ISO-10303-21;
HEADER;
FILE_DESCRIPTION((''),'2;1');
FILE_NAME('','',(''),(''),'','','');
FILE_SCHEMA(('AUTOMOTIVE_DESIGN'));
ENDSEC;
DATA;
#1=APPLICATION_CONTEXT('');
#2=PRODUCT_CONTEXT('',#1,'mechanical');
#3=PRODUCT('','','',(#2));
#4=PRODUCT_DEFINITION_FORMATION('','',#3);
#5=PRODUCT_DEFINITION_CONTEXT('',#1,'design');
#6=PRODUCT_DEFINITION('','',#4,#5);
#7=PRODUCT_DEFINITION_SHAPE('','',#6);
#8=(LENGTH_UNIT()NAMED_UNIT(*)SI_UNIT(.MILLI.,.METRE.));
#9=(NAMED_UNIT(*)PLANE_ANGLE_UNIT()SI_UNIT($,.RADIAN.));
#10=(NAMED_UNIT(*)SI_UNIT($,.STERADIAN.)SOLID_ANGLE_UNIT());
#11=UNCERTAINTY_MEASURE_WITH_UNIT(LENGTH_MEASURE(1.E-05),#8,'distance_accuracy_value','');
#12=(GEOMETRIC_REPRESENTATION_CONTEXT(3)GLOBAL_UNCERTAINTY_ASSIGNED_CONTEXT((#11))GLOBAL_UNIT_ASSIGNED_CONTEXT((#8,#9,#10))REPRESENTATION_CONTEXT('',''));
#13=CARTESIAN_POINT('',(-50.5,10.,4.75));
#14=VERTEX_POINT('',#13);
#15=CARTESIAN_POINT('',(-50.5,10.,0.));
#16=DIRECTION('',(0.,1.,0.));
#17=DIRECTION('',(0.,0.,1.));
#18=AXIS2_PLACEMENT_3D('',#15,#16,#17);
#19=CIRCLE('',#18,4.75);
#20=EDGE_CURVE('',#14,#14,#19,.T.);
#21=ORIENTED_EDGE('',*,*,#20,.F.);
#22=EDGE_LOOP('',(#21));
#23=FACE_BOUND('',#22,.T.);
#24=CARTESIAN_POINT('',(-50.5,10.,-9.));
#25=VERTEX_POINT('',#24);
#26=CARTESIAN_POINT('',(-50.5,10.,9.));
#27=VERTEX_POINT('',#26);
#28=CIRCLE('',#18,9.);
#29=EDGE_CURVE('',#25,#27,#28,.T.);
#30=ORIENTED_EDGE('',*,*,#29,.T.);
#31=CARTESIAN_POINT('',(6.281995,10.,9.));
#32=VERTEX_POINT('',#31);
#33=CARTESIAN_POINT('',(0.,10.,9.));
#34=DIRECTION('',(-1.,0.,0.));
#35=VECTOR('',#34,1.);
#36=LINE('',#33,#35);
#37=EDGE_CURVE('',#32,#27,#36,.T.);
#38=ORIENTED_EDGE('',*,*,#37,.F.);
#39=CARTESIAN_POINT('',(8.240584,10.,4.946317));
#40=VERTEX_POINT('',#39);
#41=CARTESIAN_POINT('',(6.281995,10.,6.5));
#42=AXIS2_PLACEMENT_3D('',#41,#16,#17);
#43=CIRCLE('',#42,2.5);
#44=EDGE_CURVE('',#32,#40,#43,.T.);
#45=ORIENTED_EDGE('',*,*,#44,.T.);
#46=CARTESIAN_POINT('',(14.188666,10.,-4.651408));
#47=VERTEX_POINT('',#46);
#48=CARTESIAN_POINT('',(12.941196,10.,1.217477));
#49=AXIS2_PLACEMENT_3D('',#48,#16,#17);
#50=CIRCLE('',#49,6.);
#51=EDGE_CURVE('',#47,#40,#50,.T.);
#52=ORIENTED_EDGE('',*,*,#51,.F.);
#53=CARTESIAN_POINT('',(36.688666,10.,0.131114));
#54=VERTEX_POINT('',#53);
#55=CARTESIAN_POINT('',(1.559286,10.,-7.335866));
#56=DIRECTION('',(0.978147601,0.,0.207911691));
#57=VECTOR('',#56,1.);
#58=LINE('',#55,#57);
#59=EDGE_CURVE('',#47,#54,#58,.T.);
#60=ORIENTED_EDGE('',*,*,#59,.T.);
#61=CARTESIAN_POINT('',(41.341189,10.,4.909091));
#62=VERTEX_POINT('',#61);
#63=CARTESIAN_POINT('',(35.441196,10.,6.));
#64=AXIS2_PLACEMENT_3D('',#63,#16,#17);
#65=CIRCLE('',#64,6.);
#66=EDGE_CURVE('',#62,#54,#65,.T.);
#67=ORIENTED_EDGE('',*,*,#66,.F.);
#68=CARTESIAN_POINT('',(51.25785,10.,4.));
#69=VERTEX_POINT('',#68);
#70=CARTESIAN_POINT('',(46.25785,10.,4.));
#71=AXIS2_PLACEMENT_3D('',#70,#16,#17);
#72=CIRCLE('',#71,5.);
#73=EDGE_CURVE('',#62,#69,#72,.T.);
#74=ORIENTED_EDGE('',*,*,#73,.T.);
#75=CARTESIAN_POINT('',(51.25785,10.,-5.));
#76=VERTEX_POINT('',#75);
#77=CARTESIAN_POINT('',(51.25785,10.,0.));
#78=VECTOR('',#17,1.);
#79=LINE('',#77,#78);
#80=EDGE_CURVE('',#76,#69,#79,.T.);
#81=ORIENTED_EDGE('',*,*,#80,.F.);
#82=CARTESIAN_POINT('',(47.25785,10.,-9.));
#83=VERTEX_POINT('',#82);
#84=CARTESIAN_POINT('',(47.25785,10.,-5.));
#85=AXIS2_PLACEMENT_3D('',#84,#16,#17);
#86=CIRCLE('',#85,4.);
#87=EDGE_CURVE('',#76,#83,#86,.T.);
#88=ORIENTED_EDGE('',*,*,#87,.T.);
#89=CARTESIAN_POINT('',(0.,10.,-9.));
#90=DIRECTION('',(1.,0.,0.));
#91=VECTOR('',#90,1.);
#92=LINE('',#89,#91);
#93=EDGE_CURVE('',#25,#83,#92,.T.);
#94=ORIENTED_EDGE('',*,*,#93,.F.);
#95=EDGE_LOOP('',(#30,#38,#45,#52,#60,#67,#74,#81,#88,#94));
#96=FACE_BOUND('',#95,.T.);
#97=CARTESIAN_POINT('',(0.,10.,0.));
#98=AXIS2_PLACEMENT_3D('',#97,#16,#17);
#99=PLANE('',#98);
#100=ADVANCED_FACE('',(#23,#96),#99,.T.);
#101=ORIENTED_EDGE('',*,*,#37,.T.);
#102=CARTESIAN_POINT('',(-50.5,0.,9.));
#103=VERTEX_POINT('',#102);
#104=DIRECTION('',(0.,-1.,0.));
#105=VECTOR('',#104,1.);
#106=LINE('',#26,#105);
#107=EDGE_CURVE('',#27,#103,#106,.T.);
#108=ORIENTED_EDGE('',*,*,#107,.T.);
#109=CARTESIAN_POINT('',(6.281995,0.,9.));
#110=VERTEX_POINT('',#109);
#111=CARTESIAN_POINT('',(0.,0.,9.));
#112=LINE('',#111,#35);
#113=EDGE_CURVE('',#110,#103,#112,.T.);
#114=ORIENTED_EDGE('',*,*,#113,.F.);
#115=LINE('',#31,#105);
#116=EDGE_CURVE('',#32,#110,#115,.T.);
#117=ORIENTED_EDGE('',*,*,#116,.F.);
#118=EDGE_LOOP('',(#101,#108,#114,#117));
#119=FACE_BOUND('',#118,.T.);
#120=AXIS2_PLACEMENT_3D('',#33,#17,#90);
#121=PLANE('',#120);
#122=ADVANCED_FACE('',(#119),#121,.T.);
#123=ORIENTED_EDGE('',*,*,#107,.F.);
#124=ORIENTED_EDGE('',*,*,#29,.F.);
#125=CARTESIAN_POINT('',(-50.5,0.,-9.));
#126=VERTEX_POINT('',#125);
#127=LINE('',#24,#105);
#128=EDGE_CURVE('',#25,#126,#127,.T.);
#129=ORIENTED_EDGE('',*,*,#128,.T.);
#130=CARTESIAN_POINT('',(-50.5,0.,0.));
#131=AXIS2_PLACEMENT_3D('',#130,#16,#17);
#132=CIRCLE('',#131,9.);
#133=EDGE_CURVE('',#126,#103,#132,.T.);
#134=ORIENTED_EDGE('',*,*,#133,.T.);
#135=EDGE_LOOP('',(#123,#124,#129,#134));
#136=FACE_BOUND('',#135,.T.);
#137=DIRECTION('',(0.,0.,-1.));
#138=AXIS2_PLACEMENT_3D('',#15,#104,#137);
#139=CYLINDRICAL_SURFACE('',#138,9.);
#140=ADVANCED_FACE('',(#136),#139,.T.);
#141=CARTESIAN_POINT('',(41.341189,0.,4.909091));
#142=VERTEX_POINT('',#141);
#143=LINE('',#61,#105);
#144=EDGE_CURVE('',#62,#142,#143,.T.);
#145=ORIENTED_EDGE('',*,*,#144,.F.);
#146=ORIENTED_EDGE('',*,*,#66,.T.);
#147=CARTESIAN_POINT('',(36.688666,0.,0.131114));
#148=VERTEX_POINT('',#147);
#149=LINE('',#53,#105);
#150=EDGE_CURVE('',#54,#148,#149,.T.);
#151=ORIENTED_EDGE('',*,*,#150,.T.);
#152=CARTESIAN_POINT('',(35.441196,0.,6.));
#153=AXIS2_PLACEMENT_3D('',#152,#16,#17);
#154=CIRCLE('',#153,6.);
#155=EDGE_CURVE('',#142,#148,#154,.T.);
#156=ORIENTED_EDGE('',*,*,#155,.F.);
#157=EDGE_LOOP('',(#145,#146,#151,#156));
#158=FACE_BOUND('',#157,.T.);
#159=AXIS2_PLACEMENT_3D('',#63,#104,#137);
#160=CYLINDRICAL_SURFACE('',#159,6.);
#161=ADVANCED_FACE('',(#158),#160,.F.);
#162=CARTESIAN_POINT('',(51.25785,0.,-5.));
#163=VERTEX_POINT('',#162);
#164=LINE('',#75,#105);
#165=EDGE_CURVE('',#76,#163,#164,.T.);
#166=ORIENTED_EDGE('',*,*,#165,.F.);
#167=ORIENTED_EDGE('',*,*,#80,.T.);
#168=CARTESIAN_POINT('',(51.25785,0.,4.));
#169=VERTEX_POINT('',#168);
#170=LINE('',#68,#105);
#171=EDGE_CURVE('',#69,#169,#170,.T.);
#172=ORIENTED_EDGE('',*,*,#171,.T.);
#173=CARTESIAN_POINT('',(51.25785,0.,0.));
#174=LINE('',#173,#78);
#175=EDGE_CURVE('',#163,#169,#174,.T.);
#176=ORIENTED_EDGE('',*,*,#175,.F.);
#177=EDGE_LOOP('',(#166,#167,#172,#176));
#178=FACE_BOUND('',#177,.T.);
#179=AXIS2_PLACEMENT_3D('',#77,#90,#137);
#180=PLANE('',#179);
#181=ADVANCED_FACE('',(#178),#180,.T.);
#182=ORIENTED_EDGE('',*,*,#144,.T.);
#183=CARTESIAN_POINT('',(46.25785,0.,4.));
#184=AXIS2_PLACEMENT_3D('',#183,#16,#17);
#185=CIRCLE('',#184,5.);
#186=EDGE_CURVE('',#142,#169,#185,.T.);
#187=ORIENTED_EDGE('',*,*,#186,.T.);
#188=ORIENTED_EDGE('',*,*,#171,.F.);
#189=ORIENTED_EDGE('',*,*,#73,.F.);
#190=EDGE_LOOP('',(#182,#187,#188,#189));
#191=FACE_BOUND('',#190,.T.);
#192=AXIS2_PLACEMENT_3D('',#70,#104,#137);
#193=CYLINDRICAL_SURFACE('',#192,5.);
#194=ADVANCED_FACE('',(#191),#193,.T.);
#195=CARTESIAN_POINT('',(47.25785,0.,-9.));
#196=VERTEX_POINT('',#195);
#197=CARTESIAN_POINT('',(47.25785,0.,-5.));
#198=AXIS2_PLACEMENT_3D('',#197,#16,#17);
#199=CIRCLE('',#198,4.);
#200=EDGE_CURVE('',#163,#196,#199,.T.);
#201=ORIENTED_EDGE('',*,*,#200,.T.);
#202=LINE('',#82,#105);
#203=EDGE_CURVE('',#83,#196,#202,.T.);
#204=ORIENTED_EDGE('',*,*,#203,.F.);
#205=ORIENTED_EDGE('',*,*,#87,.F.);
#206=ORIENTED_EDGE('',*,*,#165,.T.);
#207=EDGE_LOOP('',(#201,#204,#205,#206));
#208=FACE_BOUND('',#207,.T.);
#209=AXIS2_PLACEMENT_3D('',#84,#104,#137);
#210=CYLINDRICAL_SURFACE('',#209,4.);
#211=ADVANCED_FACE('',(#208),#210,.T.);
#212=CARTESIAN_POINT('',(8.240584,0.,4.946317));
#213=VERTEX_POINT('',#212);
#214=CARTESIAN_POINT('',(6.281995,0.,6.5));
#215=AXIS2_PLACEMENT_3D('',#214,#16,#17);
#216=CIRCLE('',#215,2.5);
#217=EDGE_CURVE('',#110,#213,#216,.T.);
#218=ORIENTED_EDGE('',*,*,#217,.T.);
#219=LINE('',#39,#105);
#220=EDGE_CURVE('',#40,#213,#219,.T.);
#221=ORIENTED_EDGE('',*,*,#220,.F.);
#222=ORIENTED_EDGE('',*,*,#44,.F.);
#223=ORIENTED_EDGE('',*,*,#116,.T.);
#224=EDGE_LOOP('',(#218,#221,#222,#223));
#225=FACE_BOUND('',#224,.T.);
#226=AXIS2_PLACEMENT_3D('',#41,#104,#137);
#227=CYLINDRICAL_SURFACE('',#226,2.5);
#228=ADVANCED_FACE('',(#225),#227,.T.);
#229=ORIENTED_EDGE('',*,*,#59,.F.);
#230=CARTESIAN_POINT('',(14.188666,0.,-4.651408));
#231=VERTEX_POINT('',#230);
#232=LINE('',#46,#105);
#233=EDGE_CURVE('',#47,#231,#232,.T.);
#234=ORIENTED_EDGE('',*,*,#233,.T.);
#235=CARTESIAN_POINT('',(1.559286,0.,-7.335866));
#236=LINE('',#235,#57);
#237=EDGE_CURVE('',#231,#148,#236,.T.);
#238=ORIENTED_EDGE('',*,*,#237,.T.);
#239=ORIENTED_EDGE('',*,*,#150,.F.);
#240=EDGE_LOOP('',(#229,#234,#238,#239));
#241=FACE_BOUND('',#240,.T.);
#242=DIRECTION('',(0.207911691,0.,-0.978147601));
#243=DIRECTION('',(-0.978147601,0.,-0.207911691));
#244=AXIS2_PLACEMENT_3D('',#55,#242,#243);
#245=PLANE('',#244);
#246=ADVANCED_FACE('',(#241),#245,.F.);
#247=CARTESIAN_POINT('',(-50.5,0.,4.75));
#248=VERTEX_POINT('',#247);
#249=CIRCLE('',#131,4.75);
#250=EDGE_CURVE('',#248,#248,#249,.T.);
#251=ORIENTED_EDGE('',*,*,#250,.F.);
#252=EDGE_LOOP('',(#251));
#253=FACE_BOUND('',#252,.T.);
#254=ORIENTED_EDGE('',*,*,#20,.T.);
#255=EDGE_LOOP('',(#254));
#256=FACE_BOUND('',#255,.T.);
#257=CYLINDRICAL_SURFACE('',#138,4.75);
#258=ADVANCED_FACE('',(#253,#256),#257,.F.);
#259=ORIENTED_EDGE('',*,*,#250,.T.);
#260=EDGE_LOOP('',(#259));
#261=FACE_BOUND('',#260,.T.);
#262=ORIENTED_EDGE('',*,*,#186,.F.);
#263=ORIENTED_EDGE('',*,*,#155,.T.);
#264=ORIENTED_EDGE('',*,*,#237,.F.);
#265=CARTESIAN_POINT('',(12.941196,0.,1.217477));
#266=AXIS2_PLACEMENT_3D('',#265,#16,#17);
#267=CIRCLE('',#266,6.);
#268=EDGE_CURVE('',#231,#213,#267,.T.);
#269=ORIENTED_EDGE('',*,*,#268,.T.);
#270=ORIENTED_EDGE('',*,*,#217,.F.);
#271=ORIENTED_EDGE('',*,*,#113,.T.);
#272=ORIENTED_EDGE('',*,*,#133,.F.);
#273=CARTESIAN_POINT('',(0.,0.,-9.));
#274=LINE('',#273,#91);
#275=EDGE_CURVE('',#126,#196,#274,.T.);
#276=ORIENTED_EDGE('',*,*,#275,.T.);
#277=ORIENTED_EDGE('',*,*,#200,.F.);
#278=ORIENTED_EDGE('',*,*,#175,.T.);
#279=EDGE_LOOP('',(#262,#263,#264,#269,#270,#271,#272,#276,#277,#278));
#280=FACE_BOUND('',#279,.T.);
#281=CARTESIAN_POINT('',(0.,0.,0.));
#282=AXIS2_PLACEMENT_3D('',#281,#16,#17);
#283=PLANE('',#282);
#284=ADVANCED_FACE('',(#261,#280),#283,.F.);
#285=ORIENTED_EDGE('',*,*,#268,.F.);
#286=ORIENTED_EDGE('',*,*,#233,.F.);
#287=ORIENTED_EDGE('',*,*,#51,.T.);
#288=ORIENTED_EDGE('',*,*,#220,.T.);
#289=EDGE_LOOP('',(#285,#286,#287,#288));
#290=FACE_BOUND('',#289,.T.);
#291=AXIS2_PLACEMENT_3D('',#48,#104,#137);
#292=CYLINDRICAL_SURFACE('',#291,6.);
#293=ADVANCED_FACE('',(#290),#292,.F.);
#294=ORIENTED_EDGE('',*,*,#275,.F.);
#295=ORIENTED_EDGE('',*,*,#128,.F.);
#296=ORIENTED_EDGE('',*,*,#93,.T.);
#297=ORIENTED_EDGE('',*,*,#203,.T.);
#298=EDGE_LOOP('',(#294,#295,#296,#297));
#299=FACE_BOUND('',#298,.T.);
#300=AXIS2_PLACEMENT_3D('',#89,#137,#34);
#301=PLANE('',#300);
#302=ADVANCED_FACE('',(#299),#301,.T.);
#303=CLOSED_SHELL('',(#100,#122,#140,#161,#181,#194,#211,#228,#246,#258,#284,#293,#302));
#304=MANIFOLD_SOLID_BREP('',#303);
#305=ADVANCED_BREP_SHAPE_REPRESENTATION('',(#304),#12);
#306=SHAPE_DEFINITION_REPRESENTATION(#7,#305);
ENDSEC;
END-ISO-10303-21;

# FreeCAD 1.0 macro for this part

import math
import FreeCAD as App
import Part
import Sketcher
from FreeCAD import Vector
Q = App.Units.Quantity

doc = App.newDocument("Part")
body = doc.addObject("PartDesign::Body", "Body")

sketch1 = body.newObject("Sketcher::SketchObject", "Sketch")
sketch1.AttachmentSupport = (doc.getObject("XZ_Plane"), [""])
sketch1.MapMode = "FlatFace"
sketch1.addGeometry(Part.LineSegment(Vector(47.25785, -9, 0), Vector(-50.5, -9, 0)), False)
sketch1.addGeometry(Part.ArcOfCircle(Part.Circle(Vector(-50.5, 0, 0), Vector(0, 0, 1), 9), math.radians(90), math.radians(270)), False)
sketch1.addGeometry(Part.LineSegment(Vector(-50.5, 9, 0), Vector(6.281995, 9, 0)), False)
sketch1.addGeometry(Part.ArcOfCircle(Part.Circle(Vector(6.281995, 6.5, 0), Vector(0, 0, 1), 2.5), math.radians(-38.423799), math.radians(90)), False)
sketch1.addGeometry(Part.ArcOfCircle(Part.Circle(Vector(12.941196, 1.217477, 0), Vector(0, 0, 1), 6), math.radians(141.576201), math.radians(282)), False)
sketch1.addGeometry(Part.LineSegment(Vector(14.188666, -4.651408, 0), Vector(36.688666, 0.131114, 0)), False)
sketch1.addGeometry(Part.ArcOfCircle(Part.Circle(Vector(35.441196, 6, 0), Vector(0, 0, 1), 6), math.radians(-78), math.radians(-10.475682)), False)
sketch1.addGeometry(Part.ArcOfCircle(Part.Circle(Vector(46.25785, 4, 0), Vector(0, 0, 1), 5), math.radians(90), math.radians(169.524318)), False)
sketch1.addGeometry(Part.ArcOfCircle(Part.Circle(Vector(46.25785, 4, 0), Vector(0, 0, 1), 5), math.radians(0), math.radians(90)), False)
sketch1.addGeometry(Part.LineSegment(Vector(51.25785, 4, 0), Vector(51.25785, -5, 0)), False)
sketch1.addGeometry(Part.ArcOfCircle(Part.Circle(Vector(47.25785, -5, 0), Vector(0, 0, 1), 4), math.radians(-90), math.radians(0)), False)
sketch1.addGeometry(Part.Circle(Vector(-50.5, 0, 0), Vector(0, 0, 1), 4.75), False)
sketch1.addConstraint(Sketcher.Constraint("Tangent", 0, 2, 1, 2))
sketch1.addConstraint(Sketcher.Constraint("Tangent", 1, 1, 2, 1))
sketch1.addConstraint(Sketcher.Constraint("Tangent", 2, 2, 3, 2))
sketch1.addConstraint(Sketcher.Constraint("Tangent", 3, 1, 4, 1))
sketch1.addConstraint(Sketcher.Constraint("Tangent", 4, 2, 5, 1))
sketch1.addConstraint(Sketcher.Constraint("Tangent", 5, 2, 6, 1))
sketch1.addConstraint(Sketcher.Constraint("Tangent", 6, 2, 7, 2))
sketch1.addConstraint(Sketcher.Constraint("Tangent", 7, 1, 8, 2))
sketch1.addConstraint(Sketcher.Constraint("Tangent", 8, 1, 9, 1))
sketch1.addConstraint(Sketcher.Constraint("Tangent", 9, 2, 10, 2))
sketch1.addConstraint(Sketcher.Constraint("Tangent", 10, 1, 0, 1))
sketch1.addConstraint(Sketcher.Constraint("Horizontal", 0))
sketch1.addConstraint(Sketcher.Constraint("Horizontal", 2))
sketch1.addConstraint(Sketcher.Constraint("Vertical", 9))
sketch1.addConstraint(Sketcher.Constraint("Coincident", 11, 3, 1, 3))
sketch1.addConstraint(Sketcher.Constraint("Equal", 4, 6))
sketch1.addConstraint(Sketcher.Constraint("Equal", 7, 8))
sketch1.addConstraint(Sketcher.Constraint("PointOnObject", 1, 3, -1))
sketch1.addConstraint(Sketcher.Constraint("Horizontal", 2, 2, 7, 1))
sketch1.addConstraint(Sketcher.Constraint("Vertical", 8, 3, 7, 1))
sketch1.addConstraint(Sketcher.Constraint("Radius", 1, 9.0))
sketch1.addConstraint(Sketcher.Constraint("Radius", 4, 6.0))
sketch1.addConstraint(Sketcher.Constraint("Radius", 7, 5.0))
sketch1.addConstraint(Sketcher.Constraint("Radius", 10, 4.0))
sketch1.addConstraint(Sketcher.Constraint("Diameter", 11, 9.5))
sketch1.addConstraint(Sketcher.Constraint("Radius", 3, 2.5))
sketch1.addConstraint(Sketcher.Constraint("Angle", 5, Q("12 deg")))
sketch1.addConstraint(Sketcher.Constraint("DistanceY", -1, 1, 6, 3, 6.0))
sketch1.addConstraint(Sketcher.Constraint("DistanceX", 1, 3, -1, 1, 50.5))
sketch1.addConstraint(Sketcher.Constraint("DistanceX", 4, 3, 6, 3, 22.5))
sketch1.addConstraint(Sketcher.Constraint("DistanceX", 0, 2, 0, 1, 97.75785))
pad1 = body.newObject("PartDesign::Pad", "Pad")
pad1.Profile = sketch1
pad1.Length = 10
pad1.Reversed = True

doc.recompute()
